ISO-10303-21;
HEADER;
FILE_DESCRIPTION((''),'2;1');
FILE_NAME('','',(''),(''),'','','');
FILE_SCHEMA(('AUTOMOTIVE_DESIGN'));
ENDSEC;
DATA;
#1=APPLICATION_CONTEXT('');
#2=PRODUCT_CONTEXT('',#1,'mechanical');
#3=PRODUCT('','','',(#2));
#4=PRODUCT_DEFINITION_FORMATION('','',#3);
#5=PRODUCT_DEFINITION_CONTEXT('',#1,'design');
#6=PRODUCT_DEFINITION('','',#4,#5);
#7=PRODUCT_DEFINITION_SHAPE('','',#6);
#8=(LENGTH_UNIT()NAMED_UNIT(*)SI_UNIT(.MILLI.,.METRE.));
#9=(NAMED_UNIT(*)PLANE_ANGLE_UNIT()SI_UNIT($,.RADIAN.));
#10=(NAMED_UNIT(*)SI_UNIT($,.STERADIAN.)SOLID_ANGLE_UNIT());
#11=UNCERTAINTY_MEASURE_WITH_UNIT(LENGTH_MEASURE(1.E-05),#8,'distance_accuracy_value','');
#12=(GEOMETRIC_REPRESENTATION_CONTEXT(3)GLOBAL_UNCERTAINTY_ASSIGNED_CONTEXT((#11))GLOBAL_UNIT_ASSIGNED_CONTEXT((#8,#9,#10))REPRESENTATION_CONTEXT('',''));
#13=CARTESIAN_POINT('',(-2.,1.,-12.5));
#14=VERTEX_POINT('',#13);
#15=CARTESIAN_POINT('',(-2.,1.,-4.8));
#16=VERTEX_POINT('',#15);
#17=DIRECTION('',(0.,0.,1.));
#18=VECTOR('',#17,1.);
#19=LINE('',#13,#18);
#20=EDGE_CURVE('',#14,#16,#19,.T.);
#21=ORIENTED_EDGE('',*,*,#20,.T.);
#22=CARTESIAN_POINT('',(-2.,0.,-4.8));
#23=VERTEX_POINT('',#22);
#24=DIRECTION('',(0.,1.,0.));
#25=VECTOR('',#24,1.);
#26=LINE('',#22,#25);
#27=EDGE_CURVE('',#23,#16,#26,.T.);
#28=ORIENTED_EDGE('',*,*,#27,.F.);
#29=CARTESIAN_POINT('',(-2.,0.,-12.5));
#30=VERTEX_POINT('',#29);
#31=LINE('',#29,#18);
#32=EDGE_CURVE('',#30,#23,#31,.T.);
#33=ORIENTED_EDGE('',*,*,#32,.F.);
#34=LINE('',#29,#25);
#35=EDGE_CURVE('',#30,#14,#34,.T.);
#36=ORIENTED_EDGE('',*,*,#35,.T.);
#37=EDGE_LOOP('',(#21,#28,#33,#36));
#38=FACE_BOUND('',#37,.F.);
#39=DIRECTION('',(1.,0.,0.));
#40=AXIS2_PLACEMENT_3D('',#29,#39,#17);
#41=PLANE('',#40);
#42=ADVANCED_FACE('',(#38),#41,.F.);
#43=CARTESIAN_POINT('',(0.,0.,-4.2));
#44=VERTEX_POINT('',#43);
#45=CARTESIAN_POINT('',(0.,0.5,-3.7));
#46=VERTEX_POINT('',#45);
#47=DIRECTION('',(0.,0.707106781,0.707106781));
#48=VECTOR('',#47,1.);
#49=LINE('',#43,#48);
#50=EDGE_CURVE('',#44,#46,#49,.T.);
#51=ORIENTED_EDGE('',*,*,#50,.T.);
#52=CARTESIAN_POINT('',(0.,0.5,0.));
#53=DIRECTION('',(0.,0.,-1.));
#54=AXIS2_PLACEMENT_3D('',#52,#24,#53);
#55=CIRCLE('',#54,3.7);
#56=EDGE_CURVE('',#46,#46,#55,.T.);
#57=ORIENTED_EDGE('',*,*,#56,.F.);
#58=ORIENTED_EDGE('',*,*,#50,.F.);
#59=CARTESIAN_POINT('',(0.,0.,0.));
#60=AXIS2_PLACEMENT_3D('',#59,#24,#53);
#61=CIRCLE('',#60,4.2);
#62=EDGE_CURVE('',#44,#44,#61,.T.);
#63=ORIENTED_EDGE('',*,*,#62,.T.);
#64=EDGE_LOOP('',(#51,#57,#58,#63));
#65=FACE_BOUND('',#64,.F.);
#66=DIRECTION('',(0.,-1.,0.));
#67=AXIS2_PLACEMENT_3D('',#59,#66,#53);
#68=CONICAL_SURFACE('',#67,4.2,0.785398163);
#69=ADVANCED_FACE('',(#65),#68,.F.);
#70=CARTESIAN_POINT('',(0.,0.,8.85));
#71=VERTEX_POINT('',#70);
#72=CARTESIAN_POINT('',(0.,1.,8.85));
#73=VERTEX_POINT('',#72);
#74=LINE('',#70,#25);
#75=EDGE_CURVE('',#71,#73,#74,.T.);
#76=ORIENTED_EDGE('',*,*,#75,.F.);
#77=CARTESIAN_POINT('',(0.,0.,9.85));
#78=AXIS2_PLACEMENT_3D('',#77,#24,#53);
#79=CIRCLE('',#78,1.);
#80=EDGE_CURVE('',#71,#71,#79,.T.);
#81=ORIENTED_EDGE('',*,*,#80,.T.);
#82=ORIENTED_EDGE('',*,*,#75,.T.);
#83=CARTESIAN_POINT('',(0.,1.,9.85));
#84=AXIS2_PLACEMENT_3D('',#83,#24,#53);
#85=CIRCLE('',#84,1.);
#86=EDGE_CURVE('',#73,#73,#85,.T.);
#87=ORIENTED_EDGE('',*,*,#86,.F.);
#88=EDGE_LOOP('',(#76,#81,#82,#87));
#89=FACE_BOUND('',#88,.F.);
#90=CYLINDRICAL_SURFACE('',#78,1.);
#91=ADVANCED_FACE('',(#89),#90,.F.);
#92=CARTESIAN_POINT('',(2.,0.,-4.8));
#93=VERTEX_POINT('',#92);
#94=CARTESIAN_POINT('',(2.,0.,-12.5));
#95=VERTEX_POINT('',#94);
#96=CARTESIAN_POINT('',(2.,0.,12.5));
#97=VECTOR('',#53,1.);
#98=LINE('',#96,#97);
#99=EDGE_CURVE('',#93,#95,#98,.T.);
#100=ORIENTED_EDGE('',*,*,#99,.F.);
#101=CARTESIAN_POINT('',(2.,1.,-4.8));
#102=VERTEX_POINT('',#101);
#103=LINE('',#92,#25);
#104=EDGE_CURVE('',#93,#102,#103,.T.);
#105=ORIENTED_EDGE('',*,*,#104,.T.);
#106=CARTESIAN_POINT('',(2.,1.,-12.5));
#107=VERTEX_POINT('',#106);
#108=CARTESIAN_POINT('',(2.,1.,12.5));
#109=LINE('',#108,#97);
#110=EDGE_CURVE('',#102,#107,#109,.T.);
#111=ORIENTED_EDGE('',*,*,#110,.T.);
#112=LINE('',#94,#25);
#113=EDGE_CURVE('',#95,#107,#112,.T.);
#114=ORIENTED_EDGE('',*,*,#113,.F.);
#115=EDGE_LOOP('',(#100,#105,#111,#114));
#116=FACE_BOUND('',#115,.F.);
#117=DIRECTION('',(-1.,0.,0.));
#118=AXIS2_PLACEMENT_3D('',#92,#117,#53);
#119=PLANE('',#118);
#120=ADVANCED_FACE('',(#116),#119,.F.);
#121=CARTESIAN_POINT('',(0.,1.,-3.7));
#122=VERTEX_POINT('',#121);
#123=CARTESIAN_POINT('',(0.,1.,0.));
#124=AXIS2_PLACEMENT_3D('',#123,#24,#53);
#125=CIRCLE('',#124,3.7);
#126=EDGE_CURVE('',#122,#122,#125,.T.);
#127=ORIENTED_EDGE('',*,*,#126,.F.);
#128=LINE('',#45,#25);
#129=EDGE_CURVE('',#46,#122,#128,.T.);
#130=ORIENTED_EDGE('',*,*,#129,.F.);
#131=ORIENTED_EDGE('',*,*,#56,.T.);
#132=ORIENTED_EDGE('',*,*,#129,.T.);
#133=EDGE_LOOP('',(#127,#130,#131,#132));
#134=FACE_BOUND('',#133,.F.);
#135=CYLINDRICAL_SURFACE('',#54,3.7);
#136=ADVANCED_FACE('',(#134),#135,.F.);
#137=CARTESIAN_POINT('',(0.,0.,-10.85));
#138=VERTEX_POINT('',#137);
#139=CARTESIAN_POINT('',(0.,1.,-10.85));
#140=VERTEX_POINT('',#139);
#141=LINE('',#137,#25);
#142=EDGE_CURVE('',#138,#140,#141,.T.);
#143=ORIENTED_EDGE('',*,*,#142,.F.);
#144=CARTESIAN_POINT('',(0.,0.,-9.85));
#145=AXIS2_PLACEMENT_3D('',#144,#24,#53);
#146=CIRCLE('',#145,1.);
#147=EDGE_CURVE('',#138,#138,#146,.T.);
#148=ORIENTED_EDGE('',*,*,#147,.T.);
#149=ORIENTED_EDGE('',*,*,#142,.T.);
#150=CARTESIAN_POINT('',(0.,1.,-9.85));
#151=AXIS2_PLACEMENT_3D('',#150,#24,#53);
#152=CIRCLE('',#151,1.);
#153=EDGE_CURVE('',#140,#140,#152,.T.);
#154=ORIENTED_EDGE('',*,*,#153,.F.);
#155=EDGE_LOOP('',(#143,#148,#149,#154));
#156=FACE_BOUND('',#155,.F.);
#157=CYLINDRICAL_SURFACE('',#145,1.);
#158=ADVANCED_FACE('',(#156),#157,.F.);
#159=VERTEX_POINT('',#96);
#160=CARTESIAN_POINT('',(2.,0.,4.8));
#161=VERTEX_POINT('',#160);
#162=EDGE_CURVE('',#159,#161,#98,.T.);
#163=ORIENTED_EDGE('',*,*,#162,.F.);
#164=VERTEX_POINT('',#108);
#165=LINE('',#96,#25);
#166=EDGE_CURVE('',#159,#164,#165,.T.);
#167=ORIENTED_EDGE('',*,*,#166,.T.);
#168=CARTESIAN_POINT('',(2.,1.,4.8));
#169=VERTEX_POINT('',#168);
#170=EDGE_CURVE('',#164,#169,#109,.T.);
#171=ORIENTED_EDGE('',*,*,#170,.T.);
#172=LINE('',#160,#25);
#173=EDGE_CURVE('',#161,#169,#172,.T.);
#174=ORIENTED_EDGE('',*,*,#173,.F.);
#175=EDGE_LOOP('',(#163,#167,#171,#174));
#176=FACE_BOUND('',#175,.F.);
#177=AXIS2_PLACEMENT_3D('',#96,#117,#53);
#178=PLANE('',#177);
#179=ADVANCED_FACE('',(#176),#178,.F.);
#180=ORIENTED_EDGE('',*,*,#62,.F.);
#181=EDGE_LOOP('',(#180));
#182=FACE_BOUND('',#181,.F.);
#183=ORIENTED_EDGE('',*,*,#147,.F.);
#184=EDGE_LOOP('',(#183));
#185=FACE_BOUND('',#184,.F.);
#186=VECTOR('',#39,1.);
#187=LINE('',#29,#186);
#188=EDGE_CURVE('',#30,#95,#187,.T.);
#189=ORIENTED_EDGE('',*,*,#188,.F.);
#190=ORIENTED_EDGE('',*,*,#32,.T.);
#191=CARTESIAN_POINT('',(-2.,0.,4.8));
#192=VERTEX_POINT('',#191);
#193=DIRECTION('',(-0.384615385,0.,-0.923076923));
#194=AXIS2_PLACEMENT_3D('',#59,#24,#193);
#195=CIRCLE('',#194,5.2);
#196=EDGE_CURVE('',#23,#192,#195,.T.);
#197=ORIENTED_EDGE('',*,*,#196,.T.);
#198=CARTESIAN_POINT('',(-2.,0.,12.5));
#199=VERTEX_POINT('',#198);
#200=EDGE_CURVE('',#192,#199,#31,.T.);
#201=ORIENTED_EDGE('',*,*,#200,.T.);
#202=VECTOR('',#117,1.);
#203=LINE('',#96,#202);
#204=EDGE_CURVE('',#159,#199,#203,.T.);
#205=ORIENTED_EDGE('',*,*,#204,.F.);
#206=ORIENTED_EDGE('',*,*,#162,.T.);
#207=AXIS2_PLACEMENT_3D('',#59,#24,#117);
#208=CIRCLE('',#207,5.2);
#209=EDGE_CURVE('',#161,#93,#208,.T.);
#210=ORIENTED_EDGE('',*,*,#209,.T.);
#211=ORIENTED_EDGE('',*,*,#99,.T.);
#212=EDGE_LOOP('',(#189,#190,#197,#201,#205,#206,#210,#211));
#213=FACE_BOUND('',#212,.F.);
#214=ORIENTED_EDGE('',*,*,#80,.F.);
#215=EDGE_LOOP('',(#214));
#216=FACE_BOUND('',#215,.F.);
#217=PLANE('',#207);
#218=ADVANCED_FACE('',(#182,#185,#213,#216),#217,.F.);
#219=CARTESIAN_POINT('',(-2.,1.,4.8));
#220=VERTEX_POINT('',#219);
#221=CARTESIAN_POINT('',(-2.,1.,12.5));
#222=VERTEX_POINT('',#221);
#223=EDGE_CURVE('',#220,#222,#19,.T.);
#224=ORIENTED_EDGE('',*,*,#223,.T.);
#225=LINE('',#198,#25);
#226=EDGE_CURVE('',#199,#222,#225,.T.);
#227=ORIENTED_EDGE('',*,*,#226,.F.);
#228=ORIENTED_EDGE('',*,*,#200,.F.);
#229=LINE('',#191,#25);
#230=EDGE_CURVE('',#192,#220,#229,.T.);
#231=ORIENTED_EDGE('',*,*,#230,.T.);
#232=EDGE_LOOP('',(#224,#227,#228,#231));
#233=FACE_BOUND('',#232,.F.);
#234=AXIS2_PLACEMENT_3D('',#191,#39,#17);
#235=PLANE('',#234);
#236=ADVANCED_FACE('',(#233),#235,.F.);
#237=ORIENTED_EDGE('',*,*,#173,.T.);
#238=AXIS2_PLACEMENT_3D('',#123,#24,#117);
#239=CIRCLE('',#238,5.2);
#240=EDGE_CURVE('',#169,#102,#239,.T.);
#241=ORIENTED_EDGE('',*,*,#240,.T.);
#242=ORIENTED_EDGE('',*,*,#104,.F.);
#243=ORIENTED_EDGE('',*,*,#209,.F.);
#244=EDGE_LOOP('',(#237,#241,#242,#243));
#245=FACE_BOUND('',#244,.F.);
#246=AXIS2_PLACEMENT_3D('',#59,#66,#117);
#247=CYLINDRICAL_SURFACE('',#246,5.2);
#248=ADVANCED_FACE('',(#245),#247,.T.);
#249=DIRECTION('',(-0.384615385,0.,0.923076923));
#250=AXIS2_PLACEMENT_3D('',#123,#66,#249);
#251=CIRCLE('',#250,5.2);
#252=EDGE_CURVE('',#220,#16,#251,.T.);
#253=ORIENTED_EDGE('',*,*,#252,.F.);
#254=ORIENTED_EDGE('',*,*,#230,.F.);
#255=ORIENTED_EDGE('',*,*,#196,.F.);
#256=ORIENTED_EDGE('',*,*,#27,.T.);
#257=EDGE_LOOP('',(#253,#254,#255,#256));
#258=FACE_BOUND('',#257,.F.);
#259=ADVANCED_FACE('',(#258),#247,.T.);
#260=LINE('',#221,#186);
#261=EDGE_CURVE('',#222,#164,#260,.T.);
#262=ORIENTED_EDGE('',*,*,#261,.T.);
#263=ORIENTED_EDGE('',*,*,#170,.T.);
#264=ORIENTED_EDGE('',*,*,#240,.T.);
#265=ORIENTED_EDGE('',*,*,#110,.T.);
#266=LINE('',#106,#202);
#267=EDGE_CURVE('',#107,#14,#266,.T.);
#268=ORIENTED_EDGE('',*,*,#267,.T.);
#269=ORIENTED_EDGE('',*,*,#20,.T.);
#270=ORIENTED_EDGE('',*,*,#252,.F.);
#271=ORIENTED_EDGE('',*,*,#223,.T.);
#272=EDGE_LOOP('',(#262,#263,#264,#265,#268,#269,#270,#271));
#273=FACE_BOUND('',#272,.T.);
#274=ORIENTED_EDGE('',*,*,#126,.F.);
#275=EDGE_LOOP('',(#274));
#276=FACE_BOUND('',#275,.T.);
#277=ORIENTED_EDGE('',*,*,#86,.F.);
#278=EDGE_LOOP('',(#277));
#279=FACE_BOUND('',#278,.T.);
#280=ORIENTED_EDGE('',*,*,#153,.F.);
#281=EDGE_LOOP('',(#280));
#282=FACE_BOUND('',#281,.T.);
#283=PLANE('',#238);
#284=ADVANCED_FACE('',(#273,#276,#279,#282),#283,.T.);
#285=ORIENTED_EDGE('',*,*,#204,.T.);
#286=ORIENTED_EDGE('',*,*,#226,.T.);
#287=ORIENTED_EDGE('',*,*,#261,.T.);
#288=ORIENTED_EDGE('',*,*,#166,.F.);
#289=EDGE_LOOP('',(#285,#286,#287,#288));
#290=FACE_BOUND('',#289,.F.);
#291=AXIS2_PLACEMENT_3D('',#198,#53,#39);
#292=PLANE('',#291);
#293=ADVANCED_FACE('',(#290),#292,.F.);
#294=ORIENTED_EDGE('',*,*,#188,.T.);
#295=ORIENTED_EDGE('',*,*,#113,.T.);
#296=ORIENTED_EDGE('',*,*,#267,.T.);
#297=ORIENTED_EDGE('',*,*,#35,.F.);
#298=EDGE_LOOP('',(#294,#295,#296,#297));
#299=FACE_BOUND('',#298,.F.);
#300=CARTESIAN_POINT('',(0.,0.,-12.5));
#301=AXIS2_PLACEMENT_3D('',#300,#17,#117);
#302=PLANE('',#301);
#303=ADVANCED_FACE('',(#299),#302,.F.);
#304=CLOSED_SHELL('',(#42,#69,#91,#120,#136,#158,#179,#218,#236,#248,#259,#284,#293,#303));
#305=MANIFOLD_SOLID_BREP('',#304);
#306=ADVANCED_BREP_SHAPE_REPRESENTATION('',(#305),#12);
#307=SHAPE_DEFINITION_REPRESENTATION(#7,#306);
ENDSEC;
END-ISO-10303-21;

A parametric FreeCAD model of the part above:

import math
import FreeCAD as App
import Part
import Sketcher
Q = App.Units.Quantity

doc = App.newDocument("Part")
params = doc.addObject("Spreadsheet::Sheet", "Params")
for row, (alias, value) in enumerate([
    ("sketch1_radius", "5.2 mm"),
    ("sketch1_width", "4 mm"),
    ("sketch1_height", "7.7 mm"),
    ("pad1_length", "1 mm"),
    ("sketch2_diameter", "7.4 mm"),
    ("hole_diameter", "7.4 mm"),
    ("hole_depth", "1 mm"),
    ("hole_csink_diameter", "8.4 mm"),
    ("sketch3_diameter", "2 mm"),
    ("hole2_diameter", "2 mm"),
    ("hole2_depth", "1 mm"),
    ("sketch4_diameter", "2 mm"),
    ("hole3_diameter", "2 mm"),
    ("hole3_depth", "1 mm"),
], start=1):
    params.set(f"A{row}", alias)
    params.set(f"B{row}", "=" + value)
    params.setAlias(f"B{row}", alias)

body = doc.addObject("PartDesign::Body", "Body")

sketch1 = body.newObject("Sketcher::SketchObject", "Sketch")
sketch1.AttachmentSupport = (doc.getObject("XZ_Plane"), [""])
sketch1.MapMode = "FlatFace"
sketch1.addGeometry(Part.ArcOfCircle(Part.Circle(App.Vector(0, 0, 0), App.Vector(0, 0, 1), 5.2), math.radians(113), math.radians(247)), False)
sketch1.addGeometry(Part.LineSegment(App.Vector(-2, 4.8, 0), App.Vector(-2, 12.5, 0)), False)
sketch1.addGeometry(Part.LineSegment(App.Vector(-2, 12.5, 0), App.Vector(2, 12.5, 0)), False)
sketch1.addGeometry(Part.LineSegment(App.Vector(2, 12.5, 0), App.Vector(2, 4.8, 0)), False)
sketch1.addGeometry(Part.ArcOfCircle(Part.Circle(App.Vector(0, 0, 0), App.Vector(0, 0, 1), 5.2), math.radians(-67), math.radians(67)), False)
sketch1.addGeometry(Part.LineSegment(App.Vector(2, -4.8, 0), App.Vector(2, -12.5, 0)), False)
sketch1.addGeometry(Part.LineSegment(App.Vector(2, -12.5, 0), App.Vector(-2, -12.5, 0)), False)
sketch1.addGeometry(Part.LineSegment(App.Vector(-2, -12.5, 0), App.Vector(-2, -4.8, 0)), False)
sketch1.addConstraint(Sketcher.Constraint("Coincident", 0, 1, 1, 1))
sketch1.addConstraint(Sketcher.Constraint("Coincident", 1, 2, 2, 1))
sketch1.addConstraint(Sketcher.Constraint("Coincident", 2, 2, 3, 1))
sketch1.addConstraint(Sketcher.Constraint("Coincident", 3, 2, 4, 2))
sketch1.addConstraint(Sketcher.Constraint("Coincident", 4, 1, 5, 1))
sketch1.addConstraint(Sketcher.Constraint("Coincident", 5, 2, 6, 1))
sketch1.addConstraint(Sketcher.Constraint("Coincident", 6, 2, 7, 1))
sketch1.addConstraint(Sketcher.Constraint("Coincident", 7, 2, 0, 2))
sketch1.addConstraint(Sketcher.Constraint("Vertical", 1))
sketch1.addConstraint(Sketcher.Constraint("Horizontal", 2))
sketch1.addConstraint(Sketcher.Constraint("Vertical", 3))
sketch1.addConstraint(Sketcher.Constraint("Vertical", 5))
sketch1.addConstraint(Sketcher.Constraint("Horizontal", 6))
sketch1.addConstraint(Sketcher.Constraint("Vertical", 7))
sketch1.addConstraint(Sketcher.Constraint("Coincident", 0, 3, -1, 1))
sketch1.addConstraint(Sketcher.Constraint("Coincident", 4, 3, -1, 1))
sketch1.addConstraint(Sketcher.Constraint("Equal", 0, 4))
sketch1.addConstraint(Sketcher.Constraint("Symmetric", 1, 2, 5, 2, -1, 1))
sketch1.addConstraint(Sketcher.Constraint("Horizontal", 0, 1, 3, 2))
sketch1.addConstraint(Sketcher.Constraint("Horizontal", 4, 1, 7, 2))
sketch1.addConstraint(Sketcher.Constraint("Radius", 0, Q("5.2 mm")))
sketch1.addConstraint(Sketcher.Constraint("DistanceX", 2, 1, 2, 2, Q("4 mm")))
sketch1.addConstraint(Sketcher.Constraint("DistanceY", 1, 1, 1, 2, Q("7.7 mm")))
sketch1.setExpression("Constraints[20]", "Params.sketch1_radius")
sketch1.setExpression("Constraints[21]", "Params.sketch1_width")
sketch1.setExpression("Constraints[22]", "Params.sketch1_height")
pad1 = body.newObject("PartDesign::Pad", "Pad")
pad1.Profile = sketch1
pad1.setExpression("Length", "Params.pad1_length")
pad1.Reversed = True

sketch2 = body.newObject("Sketcher::SketchObject", "Sketch001")
sketch2.AttachmentSupport = (doc.getObject("XZ_Plane"), [""])
sketch2.MapMode = "FlatFace"
sketch2.addGeometry(Part.Circle(App.Vector(0, 0, 0), App.Vector(0, 0, 1), 3.7), False)
sketch2.addConstraint(Sketcher.Constraint("Coincident", 0, 3, -1, 1))
sketch2.addConstraint(Sketcher.Constraint("Diameter", 0, Q("7.4 mm")))
sketch2.setExpression("Constraints[1]", "Params.sketch2_diameter")
doc.recompute()
hole = body.newObject("PartDesign::Hole", "Hole")
hole.Profile = sketch2
hole.ThreadType = "None"
hole.setExpression("Diameter", "Params.hole_diameter")
hole.DepthType = "Dimension"
hole.setExpression("Depth", "Params.hole_depth")
hole.DrillPoint = "Angled"
hole.DrillPointAngle = 118
hole.HoleCutType = "Countersink"
hole.setExpression("HoleCutDiameter", "Params.hole_csink_diameter")
hole.HoleCutCountersinkAngle = 90

sketch3 = body.newObject("Sketcher::SketchObject", "Sketch002")
sketch3.AttachmentSupport = (doc.getObject("XZ_Plane"), [""])
sketch3.MapMode = "FlatFace"
sketch3.addGeometry(Part.Circle(App.Vector(0, 9.8, 0), App.Vector(0, 0, 1), 1), False)
sketch3.addConstraint(Sketcher.Constraint("PointOnObject", 0, 3, -2))
sketch3.addConstraint(Sketcher.Constraint("Diameter", 0, Q("2 mm")))
sketch3.addConstraint(Sketcher.Constraint("DistanceY", -1, 1, 0, 3, Q("9.85 mm")))
sketch3.setExpression("Constraints[1]", "Params.sketch3_diameter")
doc.recompute()
hole2 = body.newObject("PartDesign::Hole", "Hole001")
hole2.Profile = sketch3
hole2.ThreadType = "None"
hole2.setExpression("Diameter", "Params.hole2_diameter")
hole2.DepthType = "Dimension"
hole2.setExpression("Depth", "Params.hole2_depth")
hole2.DrillPoint = "Angled"
hole2.DrillPointAngle = 118

sketch4 = body.newObject("Sketcher::SketchObject", "Sketch003")
sketch4.AttachmentSupport = (doc.getObject("XZ_Plane"), [""])
sketch4.MapMode = "FlatFace"
sketch4.addGeometry(Part.Circle(App.Vector(0, -9.8, 0), App.Vector(0, 0, 1), 1), False)
sketch4.addConstraint(Sketcher.Constraint("PointOnObject", 0, 3, -2))
sketch4.addConstraint(Sketcher.Constraint("Diameter", 0, Q("2 mm")))
sketch4.addConstraint(Sketcher.Constraint("DistanceY", 0, 3, -1, 1, Q("9.85 mm")))
sketch4.setExpression("Constraints[1]", "Params.sketch4_diameter")
doc.recompute()
hole3 = body.newObject("PartDesign::Hole", "Hole002")
hole3.Profile = sketch4
hole3.ThreadType = "None"
hole3.setExpression("Diameter", "Params.hole3_diameter")
hole3.DepthType = "Dimension"
hole3.setExpression("Depth", "Params.hole3_depth")
hole3.DrillPoint = "Angled"
hole3.DrillPointAngle = 118

doc.recompute()
